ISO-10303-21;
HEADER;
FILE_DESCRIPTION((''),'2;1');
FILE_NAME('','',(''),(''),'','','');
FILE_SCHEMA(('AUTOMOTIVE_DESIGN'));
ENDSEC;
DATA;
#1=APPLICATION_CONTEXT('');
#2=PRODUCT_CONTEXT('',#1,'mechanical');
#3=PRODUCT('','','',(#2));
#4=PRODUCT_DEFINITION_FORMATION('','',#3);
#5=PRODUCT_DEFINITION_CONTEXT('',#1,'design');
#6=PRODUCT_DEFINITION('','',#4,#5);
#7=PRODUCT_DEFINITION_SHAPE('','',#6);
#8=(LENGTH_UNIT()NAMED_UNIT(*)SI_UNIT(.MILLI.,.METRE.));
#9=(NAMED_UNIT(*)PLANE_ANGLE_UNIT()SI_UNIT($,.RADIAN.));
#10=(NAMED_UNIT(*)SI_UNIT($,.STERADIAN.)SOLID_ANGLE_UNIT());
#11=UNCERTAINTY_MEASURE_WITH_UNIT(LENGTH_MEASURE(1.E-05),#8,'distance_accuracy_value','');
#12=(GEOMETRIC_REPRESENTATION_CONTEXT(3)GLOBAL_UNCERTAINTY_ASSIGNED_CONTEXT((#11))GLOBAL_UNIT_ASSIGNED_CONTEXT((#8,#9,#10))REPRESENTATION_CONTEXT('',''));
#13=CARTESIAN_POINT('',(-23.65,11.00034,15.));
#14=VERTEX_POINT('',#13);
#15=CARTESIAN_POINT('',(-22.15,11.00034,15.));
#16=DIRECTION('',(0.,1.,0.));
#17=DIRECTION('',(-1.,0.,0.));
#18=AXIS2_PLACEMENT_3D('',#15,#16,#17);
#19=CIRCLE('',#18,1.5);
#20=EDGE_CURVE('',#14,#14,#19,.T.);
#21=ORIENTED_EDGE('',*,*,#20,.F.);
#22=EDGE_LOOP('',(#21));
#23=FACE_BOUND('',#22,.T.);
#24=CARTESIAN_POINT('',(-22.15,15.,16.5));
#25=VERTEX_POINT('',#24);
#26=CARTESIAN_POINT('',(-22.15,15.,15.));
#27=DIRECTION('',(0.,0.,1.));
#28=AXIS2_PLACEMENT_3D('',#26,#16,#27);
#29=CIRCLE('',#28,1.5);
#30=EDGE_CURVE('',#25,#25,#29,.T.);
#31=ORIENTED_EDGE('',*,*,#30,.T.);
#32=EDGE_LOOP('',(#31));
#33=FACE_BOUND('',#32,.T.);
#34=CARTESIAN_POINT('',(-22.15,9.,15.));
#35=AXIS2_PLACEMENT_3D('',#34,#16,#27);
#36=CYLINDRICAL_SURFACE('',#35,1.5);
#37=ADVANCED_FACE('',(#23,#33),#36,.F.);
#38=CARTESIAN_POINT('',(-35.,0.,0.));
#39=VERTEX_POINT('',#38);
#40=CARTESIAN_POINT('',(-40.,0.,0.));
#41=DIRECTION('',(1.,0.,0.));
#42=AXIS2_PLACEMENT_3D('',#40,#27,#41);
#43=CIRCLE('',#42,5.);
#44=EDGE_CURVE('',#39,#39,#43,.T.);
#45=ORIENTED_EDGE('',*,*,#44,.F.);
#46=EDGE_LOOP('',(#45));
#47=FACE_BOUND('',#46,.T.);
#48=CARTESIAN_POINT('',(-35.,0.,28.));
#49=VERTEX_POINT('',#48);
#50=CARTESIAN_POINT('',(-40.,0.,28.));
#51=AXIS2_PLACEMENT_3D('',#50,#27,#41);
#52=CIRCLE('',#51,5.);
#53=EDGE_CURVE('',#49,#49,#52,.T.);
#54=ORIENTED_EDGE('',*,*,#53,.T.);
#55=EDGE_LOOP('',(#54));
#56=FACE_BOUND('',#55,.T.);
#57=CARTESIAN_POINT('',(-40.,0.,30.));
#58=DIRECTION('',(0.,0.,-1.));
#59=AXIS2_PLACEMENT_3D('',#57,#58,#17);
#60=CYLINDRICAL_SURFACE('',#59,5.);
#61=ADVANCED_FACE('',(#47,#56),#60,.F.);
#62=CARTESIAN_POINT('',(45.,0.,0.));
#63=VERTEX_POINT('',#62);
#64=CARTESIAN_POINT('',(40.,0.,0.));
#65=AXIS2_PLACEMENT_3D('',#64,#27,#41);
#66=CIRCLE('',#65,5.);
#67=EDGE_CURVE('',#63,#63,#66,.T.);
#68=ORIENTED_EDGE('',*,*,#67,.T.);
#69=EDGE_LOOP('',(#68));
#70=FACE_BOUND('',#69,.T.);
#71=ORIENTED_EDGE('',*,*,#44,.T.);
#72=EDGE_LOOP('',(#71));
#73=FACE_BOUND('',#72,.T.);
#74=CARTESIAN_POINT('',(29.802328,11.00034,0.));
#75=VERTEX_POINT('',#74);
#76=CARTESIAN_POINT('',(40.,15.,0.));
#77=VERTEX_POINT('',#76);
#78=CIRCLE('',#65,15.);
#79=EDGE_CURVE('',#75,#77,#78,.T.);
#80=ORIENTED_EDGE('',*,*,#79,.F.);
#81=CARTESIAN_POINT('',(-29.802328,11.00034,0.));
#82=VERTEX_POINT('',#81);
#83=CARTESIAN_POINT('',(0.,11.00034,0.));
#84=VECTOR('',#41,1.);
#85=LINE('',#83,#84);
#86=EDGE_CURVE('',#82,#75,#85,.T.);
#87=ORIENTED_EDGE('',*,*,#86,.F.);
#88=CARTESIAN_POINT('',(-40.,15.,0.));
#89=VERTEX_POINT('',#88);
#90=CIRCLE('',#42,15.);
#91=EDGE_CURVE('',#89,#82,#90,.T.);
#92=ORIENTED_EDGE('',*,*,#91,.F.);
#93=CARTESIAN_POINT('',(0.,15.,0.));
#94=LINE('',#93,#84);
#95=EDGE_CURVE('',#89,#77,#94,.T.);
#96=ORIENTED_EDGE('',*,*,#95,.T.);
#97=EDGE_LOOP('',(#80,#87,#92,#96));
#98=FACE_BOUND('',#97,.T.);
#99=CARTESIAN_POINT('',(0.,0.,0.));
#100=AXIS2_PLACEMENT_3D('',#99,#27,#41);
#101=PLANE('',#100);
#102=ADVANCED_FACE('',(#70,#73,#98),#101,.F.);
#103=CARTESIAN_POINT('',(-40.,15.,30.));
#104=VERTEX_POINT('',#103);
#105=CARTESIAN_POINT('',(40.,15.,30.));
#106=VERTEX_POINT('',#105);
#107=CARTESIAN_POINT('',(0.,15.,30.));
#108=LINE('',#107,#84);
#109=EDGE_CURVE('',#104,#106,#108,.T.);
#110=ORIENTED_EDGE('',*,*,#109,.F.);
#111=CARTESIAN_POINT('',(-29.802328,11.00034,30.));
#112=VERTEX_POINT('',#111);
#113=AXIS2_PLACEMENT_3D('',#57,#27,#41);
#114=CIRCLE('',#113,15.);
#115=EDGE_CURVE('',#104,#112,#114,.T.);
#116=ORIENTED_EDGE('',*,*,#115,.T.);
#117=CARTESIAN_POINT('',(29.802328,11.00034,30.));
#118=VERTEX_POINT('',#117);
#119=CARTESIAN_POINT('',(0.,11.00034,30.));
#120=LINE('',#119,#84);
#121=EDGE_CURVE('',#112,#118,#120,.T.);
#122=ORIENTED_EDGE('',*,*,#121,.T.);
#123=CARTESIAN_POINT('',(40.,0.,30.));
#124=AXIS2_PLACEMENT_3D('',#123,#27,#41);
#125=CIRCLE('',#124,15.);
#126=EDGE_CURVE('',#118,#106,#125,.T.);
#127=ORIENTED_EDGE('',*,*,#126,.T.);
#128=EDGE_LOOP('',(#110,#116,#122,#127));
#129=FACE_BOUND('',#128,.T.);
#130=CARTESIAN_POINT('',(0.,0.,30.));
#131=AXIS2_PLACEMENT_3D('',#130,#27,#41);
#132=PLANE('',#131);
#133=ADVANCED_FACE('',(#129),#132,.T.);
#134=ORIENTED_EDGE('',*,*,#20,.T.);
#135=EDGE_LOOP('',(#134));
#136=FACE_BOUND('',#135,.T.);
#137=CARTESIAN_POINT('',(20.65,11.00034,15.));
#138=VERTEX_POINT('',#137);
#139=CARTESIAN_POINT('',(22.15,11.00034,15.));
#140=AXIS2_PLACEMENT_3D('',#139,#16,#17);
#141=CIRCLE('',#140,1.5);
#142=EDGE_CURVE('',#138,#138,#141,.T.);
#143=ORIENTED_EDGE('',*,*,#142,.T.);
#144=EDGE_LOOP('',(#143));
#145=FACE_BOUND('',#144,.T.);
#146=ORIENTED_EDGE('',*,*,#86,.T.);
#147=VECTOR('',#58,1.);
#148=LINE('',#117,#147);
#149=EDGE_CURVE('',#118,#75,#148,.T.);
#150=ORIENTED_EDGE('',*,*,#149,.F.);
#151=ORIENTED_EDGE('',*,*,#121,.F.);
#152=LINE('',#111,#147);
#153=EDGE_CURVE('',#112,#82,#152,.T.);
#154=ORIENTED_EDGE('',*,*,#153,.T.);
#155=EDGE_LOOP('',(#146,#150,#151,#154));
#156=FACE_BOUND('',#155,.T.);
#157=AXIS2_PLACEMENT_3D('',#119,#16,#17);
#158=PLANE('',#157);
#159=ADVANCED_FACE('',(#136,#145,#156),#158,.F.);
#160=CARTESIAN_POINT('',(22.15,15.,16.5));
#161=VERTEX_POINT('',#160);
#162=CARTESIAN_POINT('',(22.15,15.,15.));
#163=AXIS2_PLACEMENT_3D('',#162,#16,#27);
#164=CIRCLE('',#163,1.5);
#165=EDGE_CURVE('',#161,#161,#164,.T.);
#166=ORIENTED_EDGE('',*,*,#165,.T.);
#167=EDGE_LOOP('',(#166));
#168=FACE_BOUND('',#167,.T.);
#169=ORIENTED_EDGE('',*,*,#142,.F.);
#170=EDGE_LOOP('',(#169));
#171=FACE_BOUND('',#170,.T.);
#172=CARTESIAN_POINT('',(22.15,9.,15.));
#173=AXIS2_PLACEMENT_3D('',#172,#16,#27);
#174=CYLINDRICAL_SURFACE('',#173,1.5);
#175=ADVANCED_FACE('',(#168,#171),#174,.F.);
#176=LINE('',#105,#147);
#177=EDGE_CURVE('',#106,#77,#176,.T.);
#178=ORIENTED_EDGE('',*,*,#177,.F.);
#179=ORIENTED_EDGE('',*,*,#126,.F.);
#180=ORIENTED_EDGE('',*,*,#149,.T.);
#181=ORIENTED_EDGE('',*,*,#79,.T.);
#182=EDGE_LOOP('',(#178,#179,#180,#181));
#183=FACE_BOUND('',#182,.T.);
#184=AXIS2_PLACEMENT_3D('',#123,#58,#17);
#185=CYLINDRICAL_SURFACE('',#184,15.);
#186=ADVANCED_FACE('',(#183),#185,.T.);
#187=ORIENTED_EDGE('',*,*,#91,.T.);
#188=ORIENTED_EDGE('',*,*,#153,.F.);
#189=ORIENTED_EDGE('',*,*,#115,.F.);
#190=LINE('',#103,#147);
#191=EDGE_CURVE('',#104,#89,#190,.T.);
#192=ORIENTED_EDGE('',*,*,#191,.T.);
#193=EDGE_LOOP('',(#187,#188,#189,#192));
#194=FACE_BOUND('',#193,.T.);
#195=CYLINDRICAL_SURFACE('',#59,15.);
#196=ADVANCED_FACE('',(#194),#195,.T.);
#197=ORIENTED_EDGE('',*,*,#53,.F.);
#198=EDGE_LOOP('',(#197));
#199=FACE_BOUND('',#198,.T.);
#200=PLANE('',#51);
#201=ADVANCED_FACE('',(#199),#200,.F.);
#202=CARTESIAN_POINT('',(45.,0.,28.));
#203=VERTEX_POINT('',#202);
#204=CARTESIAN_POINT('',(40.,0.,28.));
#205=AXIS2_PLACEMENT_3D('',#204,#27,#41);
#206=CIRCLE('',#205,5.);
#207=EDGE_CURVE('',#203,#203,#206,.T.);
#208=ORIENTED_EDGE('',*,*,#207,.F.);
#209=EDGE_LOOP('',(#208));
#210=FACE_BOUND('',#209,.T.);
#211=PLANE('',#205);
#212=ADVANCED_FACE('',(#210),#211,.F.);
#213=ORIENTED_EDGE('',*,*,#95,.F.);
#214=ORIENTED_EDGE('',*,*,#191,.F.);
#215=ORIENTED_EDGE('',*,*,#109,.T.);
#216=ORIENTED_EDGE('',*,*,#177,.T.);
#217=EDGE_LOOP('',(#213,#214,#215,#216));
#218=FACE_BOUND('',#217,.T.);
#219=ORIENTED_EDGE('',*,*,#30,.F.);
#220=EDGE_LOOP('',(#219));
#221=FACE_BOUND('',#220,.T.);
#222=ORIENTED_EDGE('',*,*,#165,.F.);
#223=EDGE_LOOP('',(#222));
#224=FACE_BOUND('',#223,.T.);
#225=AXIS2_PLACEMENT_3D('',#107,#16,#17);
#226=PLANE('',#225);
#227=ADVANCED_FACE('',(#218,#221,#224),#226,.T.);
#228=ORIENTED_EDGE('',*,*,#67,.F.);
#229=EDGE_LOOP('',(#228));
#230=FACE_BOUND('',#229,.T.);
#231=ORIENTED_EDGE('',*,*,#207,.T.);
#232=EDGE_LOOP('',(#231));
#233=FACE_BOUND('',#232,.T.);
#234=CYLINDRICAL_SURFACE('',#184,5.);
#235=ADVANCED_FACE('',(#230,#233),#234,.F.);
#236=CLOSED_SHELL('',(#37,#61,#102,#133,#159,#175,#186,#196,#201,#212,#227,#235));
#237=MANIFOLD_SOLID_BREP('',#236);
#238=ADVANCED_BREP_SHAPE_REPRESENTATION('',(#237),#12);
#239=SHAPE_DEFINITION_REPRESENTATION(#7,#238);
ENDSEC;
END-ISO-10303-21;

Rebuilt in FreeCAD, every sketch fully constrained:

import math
import FreeCAD as App
import Part
import Sketcher
from FreeCAD import Vector

doc = App.newDocument("Part")
body = doc.addObject("PartDesign::Body", "Body")

# Sketch on XY plane
sketch1 = doc.addObject("Sketcher::SketchObject", "Sketch")
body.addObject(sketch1)
sketch1.AttachmentSupport = (doc.XY_Plane, [""])
sketch1.MapMode = "FlatFace"
sketch1.addGeometry([
    Part.LineSegment(Vector(40, 15, 0), Vector(-40, 15, 0)),  # 0
    Part.ArcOfCircle(Part.Circle(Vector(-40, 0, 0), Vector(0, 0, 1), 15), math.radians(90), math.radians(407)),  # 1
    Part.LineSegment(Vector(-30, 11, 0), Vector(30, 11, 0)),  # 2
    Part.ArcOfCircle(Part.Circle(Vector(40, 0, 0), Vector(0, 0, 1), 15), math.radians(133), math.radians(450)),  # 3
    Part.Circle(Vector(40, 0, 0), Vector(0, 0, 1), 5),  # 4
    Part.Circle(Vector(-40, 0, 0), Vector(0, 0, 1), 5),  # 5
], False)
sketch1.addConstraint([
    Sketcher.Constraint("Tangent", 0, 2, 1, 1),
    Sketcher.Constraint("Coincident", 1, 2, 2, 1),
    Sketcher.Constraint("Coincident", 2, 2, 3, 1),
    Sketcher.Constraint("Tangent", 3, 2, 0, 1),
    Sketcher.Constraint("Horizontal", 0),
    Sketcher.Constraint("Horizontal", 2),
    Sketcher.Constraint("Coincident", 4, 3, 3, 3),
    Sketcher.Constraint("Coincident", 5, 3, 1, 3),
    Sketcher.Constraint("Equal", 1, 3),
    Sketcher.Constraint("Equal", 4, 5),
    Sketcher.Constraint("Symmetric", 1, 3, 3, 3, -1, 1),
    Sketcher.Constraint("Diameter", 4, 10.0),
    Sketcher.Constraint("Radius", 1, 15.0),
    Sketcher.Constraint("DistanceX", 0, 2, 0, 1, 80.0),
    Sketcher.Constraint("DistanceX", 2, 1, 2, 2, 59.604655),
])
pad1 = doc.addObject("PartDesign::Pad", "Pad")
body.addObject(pad1)
pad1.Profile = sketch1
pad1.Length = 30

# Sketch on XZ plane
sketch2 = doc.addObject("Sketcher::SketchObject", "Sketch001")
body.addObject(sketch2)
sketch2.AttachmentSupport = (doc.XZ_Plane, [""])
sketch2.MapMode = "FlatFace"
sketch2.AttachmentOffset = App.Placement(Vector(0, 0, -15), App.Rotation())
sketch2.addGeometry([
    Part.Circle(Vector(-22.1, 15, 0), Vector(0, 0, 1), 1.5),
    Part.Circle(Vector(22.1, 15, 0), Vector(0, 0, 1), 1.5),
], False)
sketch2.addConstraint([
    Sketcher.Constraint("Equal", 0, 1),
    Sketcher.Constraint("Symmetric", 0, 3, 1, 3, -2),
    Sketcher.Constraint("Diameter", 0, 3.0),
    Sketcher.Constraint("DistanceY", -1, 1, 0, 3, 15.0),
    Sketcher.Constraint("DistanceX", 0, 3, 1, 3, 44.3),
])
pocket1 = doc.addObject("PartDesign::Pocket", "Pocket")
body.addObject(pocket1)
pocket1.Profile = sketch2
pocket1.Length = 6
pocket1.Reversed = True

# Sketch on XY plane
sketch3 = doc.addObject("Sketcher::SketchObject", "Sketch002")
body.addObject(sketch3)
sketch3.AttachmentSupport = (doc.XY_Plane, [""])
sketch3.MapMode = "FlatFace"
sketch3.AttachmentOffset = App.Placement(Vector(0, 0, 30), App.Rotation())
sketch3.addGeometry([
    Part.Circle(Vector(-40, 0, 0), Vector(0, 0, 1), 9),
    Part.Circle(Vector(40, 0, 0), Vector(0, 0, 1), 9),
], False)
sketch3.addConstraint([
    Sketcher.Constraint("Equal", 0, 1),
    Sketcher.Constraint("Symmetric", 0, 3, 1, 3, -1, 1),
    Sketcher.Constraint("PointOnObject", 0, 3, -1),
    Sketcher.Constraint("Diameter", 0, 18.9),
    Sketcher.Constraint("DistanceX", 0, 3, -1, 1, 40.0),
])
pad2 = doc.addObject("PartDesign::Pad", "Pad001")
body.addObject(pad2)
pad2.Profile = sketch3
pad2.Length = 2
pad2.Reversed = True

doc.recompute()
